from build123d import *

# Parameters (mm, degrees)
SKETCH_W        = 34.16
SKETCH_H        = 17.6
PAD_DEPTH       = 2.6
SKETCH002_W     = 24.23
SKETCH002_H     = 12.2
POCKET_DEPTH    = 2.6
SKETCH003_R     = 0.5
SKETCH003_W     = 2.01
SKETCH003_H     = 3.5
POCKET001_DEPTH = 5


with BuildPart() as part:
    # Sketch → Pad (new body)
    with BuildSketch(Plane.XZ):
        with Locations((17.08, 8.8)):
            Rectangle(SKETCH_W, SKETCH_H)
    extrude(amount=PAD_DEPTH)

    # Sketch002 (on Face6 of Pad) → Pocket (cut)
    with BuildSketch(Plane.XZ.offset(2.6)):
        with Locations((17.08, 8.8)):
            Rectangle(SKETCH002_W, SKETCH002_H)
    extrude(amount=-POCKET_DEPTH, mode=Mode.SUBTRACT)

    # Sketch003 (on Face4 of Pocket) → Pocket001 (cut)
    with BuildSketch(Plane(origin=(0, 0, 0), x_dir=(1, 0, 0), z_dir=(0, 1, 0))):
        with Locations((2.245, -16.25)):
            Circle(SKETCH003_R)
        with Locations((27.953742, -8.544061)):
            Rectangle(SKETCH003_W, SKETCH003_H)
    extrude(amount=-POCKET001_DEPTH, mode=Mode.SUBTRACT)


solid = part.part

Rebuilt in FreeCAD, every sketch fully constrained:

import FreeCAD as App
import Part
import Sketcher
from FreeCAD import Vector
Q = App.Units.Quantity


def add_polygon(sketch, points):
    """Adds a closed chain of lines whose ends are joined by coincident constraints."""
    first, n = sketch.GeometryCount, len(points)
    for a, b in zip(points, points[1:] + points[:1]):
        sketch.addGeometry(Part.LineSegment(App.Vector(*a, 0), App.Vector(*b, 0)), False)
    for i in range(n):
        sketch.addConstraint(Sketcher.Constraint("Coincident", first + i, 2, first + (i + 1) % n, 1))

doc = App.newDocument("Part")
body = doc.addObject("PartDesign::Body", "Body")

sketch1 = doc.addObject("Sketcher::SketchObject", "Sketch")
body.addObject(sketch1)
sketch1.AttachmentSupport = (doc.XZ_Plane, [""])
sketch1.MapMode = "FlatFace"
add_polygon(sketch1, [(0, 18), (0, 0), (34, 0), (34, 18)])
sketch1.addConstraint([
    Sketcher.Constraint("Vertical", 0),
    Sketcher.Constraint("Horizontal", 1),
    Sketcher.Constraint("Vertical", 2),
    Sketcher.Constraint("Horizontal", 3),
    Sketcher.Constraint("Coincident", 0, 2, -1, 1),
    Sketcher.Constraint("DistanceY", 0, 2, 0, 1, Q("17.6 mm")),
    Sketcher.Constraint("DistanceX", 1, 1, 1, 2, Q("34.16 mm")),
])
pad1 = doc.addObject("PartDesign::Pad", "Pad")
body.addObject(pad1)
pad1.Profile = sketch1
pad1.Length = 2.6

sketch2 = doc.addObject("Sketcher::SketchObject", "Sketch001")
body.addObject(sketch2)
sketch2.AttachmentSupport = (doc.XZ_Plane, [""])
sketch2.MapMode = "FlatFace"
sketch2.AttachmentOffset = App.Placement(Vector(0, 0, 2.6), App.Rotation())
add_polygon(sketch2, [(5, 15), (5, 3), (29, 3), (29, 15)])
sketch2.addConstraint([
    Sketcher.Constraint("Vertical", 0),
    Sketcher.Constraint("Horizontal", 1),
    Sketcher.Constraint("Vertical", 2),
    Sketcher.Constraint("Horizontal", 3),
    Sketcher.Constraint("DistanceY", 0, 2, 0, 1, Q("12.2 mm")),
    Sketcher.Constraint("DistanceX", 1, 1, 1, 2, Q("24.23 mm")),
    Sketcher.Constraint("DistanceY", -1, 1, 0, 2, Q("2.7 mm")),
    Sketcher.Constraint("DistanceX", -1, 1, 0, 2, Q("4.965 mm")),
])
pocket1 = doc.addObject("PartDesign::Pocket", "Pocket")
body.addObject(pocket1)
pocket1.Profile = sketch2
pocket1.Length = 2.6

sketch3 = doc.addObject("Sketcher::SketchObject", "Sketch002")
body.addObject(sketch3)
sketch3.AttachmentSupport = (doc.XZ_Plane, [""])
sketch3.MapMode = "FlatFace"
sketch3.addGeometry(Part.Circle(Vector(2.2, 16.2, 0), Vector(0, 0, 1), 0.5), False)
add_polygon(sketch3, [(26.9, 6.8), (26.9, 10.3), (29, 10.3), (29, 6.8)])
sketch3.addConstraint([
    Sketcher.Constraint("Vertical", 1),
    Sketcher.Constraint("Horizontal", 2),
    Sketcher.Constraint("Vertical", 3),
    Sketcher.Constraint("Horizontal", 4),
    Sketcher.Constraint("Diameter", 0, Q("1 mm")),
    Sketcher.Constraint("DistanceY", 1, 1, 1, 2, Q("3.5 mm")),
    Sketcher.Constraint("DistanceX", 2, 1, 2, 2, Q("2.01 mm")),
    Sketcher.Constraint("DistanceY", -1, 1, 0, 3, Q("16.25 mm")),
    Sketcher.Constraint("DistanceX", -1, 1, 0, 3, Q("2.245 mm")),
    Sketcher.Constraint("DistanceX", -1, 1, 1, 2, Q("26.948742 mm")),
    Sketcher.Constraint("DistanceY", -1, 1, 1, 2, Q("10.294061 mm")),
])
pocket2 = doc.addObject("PartDesign::Pocket", "Pocket001")
body.addObject(pocket2)
pocket2.Profile = sketch3
pocket2.Length = 5
pocket2.Reversed = True

doc.recompute()
